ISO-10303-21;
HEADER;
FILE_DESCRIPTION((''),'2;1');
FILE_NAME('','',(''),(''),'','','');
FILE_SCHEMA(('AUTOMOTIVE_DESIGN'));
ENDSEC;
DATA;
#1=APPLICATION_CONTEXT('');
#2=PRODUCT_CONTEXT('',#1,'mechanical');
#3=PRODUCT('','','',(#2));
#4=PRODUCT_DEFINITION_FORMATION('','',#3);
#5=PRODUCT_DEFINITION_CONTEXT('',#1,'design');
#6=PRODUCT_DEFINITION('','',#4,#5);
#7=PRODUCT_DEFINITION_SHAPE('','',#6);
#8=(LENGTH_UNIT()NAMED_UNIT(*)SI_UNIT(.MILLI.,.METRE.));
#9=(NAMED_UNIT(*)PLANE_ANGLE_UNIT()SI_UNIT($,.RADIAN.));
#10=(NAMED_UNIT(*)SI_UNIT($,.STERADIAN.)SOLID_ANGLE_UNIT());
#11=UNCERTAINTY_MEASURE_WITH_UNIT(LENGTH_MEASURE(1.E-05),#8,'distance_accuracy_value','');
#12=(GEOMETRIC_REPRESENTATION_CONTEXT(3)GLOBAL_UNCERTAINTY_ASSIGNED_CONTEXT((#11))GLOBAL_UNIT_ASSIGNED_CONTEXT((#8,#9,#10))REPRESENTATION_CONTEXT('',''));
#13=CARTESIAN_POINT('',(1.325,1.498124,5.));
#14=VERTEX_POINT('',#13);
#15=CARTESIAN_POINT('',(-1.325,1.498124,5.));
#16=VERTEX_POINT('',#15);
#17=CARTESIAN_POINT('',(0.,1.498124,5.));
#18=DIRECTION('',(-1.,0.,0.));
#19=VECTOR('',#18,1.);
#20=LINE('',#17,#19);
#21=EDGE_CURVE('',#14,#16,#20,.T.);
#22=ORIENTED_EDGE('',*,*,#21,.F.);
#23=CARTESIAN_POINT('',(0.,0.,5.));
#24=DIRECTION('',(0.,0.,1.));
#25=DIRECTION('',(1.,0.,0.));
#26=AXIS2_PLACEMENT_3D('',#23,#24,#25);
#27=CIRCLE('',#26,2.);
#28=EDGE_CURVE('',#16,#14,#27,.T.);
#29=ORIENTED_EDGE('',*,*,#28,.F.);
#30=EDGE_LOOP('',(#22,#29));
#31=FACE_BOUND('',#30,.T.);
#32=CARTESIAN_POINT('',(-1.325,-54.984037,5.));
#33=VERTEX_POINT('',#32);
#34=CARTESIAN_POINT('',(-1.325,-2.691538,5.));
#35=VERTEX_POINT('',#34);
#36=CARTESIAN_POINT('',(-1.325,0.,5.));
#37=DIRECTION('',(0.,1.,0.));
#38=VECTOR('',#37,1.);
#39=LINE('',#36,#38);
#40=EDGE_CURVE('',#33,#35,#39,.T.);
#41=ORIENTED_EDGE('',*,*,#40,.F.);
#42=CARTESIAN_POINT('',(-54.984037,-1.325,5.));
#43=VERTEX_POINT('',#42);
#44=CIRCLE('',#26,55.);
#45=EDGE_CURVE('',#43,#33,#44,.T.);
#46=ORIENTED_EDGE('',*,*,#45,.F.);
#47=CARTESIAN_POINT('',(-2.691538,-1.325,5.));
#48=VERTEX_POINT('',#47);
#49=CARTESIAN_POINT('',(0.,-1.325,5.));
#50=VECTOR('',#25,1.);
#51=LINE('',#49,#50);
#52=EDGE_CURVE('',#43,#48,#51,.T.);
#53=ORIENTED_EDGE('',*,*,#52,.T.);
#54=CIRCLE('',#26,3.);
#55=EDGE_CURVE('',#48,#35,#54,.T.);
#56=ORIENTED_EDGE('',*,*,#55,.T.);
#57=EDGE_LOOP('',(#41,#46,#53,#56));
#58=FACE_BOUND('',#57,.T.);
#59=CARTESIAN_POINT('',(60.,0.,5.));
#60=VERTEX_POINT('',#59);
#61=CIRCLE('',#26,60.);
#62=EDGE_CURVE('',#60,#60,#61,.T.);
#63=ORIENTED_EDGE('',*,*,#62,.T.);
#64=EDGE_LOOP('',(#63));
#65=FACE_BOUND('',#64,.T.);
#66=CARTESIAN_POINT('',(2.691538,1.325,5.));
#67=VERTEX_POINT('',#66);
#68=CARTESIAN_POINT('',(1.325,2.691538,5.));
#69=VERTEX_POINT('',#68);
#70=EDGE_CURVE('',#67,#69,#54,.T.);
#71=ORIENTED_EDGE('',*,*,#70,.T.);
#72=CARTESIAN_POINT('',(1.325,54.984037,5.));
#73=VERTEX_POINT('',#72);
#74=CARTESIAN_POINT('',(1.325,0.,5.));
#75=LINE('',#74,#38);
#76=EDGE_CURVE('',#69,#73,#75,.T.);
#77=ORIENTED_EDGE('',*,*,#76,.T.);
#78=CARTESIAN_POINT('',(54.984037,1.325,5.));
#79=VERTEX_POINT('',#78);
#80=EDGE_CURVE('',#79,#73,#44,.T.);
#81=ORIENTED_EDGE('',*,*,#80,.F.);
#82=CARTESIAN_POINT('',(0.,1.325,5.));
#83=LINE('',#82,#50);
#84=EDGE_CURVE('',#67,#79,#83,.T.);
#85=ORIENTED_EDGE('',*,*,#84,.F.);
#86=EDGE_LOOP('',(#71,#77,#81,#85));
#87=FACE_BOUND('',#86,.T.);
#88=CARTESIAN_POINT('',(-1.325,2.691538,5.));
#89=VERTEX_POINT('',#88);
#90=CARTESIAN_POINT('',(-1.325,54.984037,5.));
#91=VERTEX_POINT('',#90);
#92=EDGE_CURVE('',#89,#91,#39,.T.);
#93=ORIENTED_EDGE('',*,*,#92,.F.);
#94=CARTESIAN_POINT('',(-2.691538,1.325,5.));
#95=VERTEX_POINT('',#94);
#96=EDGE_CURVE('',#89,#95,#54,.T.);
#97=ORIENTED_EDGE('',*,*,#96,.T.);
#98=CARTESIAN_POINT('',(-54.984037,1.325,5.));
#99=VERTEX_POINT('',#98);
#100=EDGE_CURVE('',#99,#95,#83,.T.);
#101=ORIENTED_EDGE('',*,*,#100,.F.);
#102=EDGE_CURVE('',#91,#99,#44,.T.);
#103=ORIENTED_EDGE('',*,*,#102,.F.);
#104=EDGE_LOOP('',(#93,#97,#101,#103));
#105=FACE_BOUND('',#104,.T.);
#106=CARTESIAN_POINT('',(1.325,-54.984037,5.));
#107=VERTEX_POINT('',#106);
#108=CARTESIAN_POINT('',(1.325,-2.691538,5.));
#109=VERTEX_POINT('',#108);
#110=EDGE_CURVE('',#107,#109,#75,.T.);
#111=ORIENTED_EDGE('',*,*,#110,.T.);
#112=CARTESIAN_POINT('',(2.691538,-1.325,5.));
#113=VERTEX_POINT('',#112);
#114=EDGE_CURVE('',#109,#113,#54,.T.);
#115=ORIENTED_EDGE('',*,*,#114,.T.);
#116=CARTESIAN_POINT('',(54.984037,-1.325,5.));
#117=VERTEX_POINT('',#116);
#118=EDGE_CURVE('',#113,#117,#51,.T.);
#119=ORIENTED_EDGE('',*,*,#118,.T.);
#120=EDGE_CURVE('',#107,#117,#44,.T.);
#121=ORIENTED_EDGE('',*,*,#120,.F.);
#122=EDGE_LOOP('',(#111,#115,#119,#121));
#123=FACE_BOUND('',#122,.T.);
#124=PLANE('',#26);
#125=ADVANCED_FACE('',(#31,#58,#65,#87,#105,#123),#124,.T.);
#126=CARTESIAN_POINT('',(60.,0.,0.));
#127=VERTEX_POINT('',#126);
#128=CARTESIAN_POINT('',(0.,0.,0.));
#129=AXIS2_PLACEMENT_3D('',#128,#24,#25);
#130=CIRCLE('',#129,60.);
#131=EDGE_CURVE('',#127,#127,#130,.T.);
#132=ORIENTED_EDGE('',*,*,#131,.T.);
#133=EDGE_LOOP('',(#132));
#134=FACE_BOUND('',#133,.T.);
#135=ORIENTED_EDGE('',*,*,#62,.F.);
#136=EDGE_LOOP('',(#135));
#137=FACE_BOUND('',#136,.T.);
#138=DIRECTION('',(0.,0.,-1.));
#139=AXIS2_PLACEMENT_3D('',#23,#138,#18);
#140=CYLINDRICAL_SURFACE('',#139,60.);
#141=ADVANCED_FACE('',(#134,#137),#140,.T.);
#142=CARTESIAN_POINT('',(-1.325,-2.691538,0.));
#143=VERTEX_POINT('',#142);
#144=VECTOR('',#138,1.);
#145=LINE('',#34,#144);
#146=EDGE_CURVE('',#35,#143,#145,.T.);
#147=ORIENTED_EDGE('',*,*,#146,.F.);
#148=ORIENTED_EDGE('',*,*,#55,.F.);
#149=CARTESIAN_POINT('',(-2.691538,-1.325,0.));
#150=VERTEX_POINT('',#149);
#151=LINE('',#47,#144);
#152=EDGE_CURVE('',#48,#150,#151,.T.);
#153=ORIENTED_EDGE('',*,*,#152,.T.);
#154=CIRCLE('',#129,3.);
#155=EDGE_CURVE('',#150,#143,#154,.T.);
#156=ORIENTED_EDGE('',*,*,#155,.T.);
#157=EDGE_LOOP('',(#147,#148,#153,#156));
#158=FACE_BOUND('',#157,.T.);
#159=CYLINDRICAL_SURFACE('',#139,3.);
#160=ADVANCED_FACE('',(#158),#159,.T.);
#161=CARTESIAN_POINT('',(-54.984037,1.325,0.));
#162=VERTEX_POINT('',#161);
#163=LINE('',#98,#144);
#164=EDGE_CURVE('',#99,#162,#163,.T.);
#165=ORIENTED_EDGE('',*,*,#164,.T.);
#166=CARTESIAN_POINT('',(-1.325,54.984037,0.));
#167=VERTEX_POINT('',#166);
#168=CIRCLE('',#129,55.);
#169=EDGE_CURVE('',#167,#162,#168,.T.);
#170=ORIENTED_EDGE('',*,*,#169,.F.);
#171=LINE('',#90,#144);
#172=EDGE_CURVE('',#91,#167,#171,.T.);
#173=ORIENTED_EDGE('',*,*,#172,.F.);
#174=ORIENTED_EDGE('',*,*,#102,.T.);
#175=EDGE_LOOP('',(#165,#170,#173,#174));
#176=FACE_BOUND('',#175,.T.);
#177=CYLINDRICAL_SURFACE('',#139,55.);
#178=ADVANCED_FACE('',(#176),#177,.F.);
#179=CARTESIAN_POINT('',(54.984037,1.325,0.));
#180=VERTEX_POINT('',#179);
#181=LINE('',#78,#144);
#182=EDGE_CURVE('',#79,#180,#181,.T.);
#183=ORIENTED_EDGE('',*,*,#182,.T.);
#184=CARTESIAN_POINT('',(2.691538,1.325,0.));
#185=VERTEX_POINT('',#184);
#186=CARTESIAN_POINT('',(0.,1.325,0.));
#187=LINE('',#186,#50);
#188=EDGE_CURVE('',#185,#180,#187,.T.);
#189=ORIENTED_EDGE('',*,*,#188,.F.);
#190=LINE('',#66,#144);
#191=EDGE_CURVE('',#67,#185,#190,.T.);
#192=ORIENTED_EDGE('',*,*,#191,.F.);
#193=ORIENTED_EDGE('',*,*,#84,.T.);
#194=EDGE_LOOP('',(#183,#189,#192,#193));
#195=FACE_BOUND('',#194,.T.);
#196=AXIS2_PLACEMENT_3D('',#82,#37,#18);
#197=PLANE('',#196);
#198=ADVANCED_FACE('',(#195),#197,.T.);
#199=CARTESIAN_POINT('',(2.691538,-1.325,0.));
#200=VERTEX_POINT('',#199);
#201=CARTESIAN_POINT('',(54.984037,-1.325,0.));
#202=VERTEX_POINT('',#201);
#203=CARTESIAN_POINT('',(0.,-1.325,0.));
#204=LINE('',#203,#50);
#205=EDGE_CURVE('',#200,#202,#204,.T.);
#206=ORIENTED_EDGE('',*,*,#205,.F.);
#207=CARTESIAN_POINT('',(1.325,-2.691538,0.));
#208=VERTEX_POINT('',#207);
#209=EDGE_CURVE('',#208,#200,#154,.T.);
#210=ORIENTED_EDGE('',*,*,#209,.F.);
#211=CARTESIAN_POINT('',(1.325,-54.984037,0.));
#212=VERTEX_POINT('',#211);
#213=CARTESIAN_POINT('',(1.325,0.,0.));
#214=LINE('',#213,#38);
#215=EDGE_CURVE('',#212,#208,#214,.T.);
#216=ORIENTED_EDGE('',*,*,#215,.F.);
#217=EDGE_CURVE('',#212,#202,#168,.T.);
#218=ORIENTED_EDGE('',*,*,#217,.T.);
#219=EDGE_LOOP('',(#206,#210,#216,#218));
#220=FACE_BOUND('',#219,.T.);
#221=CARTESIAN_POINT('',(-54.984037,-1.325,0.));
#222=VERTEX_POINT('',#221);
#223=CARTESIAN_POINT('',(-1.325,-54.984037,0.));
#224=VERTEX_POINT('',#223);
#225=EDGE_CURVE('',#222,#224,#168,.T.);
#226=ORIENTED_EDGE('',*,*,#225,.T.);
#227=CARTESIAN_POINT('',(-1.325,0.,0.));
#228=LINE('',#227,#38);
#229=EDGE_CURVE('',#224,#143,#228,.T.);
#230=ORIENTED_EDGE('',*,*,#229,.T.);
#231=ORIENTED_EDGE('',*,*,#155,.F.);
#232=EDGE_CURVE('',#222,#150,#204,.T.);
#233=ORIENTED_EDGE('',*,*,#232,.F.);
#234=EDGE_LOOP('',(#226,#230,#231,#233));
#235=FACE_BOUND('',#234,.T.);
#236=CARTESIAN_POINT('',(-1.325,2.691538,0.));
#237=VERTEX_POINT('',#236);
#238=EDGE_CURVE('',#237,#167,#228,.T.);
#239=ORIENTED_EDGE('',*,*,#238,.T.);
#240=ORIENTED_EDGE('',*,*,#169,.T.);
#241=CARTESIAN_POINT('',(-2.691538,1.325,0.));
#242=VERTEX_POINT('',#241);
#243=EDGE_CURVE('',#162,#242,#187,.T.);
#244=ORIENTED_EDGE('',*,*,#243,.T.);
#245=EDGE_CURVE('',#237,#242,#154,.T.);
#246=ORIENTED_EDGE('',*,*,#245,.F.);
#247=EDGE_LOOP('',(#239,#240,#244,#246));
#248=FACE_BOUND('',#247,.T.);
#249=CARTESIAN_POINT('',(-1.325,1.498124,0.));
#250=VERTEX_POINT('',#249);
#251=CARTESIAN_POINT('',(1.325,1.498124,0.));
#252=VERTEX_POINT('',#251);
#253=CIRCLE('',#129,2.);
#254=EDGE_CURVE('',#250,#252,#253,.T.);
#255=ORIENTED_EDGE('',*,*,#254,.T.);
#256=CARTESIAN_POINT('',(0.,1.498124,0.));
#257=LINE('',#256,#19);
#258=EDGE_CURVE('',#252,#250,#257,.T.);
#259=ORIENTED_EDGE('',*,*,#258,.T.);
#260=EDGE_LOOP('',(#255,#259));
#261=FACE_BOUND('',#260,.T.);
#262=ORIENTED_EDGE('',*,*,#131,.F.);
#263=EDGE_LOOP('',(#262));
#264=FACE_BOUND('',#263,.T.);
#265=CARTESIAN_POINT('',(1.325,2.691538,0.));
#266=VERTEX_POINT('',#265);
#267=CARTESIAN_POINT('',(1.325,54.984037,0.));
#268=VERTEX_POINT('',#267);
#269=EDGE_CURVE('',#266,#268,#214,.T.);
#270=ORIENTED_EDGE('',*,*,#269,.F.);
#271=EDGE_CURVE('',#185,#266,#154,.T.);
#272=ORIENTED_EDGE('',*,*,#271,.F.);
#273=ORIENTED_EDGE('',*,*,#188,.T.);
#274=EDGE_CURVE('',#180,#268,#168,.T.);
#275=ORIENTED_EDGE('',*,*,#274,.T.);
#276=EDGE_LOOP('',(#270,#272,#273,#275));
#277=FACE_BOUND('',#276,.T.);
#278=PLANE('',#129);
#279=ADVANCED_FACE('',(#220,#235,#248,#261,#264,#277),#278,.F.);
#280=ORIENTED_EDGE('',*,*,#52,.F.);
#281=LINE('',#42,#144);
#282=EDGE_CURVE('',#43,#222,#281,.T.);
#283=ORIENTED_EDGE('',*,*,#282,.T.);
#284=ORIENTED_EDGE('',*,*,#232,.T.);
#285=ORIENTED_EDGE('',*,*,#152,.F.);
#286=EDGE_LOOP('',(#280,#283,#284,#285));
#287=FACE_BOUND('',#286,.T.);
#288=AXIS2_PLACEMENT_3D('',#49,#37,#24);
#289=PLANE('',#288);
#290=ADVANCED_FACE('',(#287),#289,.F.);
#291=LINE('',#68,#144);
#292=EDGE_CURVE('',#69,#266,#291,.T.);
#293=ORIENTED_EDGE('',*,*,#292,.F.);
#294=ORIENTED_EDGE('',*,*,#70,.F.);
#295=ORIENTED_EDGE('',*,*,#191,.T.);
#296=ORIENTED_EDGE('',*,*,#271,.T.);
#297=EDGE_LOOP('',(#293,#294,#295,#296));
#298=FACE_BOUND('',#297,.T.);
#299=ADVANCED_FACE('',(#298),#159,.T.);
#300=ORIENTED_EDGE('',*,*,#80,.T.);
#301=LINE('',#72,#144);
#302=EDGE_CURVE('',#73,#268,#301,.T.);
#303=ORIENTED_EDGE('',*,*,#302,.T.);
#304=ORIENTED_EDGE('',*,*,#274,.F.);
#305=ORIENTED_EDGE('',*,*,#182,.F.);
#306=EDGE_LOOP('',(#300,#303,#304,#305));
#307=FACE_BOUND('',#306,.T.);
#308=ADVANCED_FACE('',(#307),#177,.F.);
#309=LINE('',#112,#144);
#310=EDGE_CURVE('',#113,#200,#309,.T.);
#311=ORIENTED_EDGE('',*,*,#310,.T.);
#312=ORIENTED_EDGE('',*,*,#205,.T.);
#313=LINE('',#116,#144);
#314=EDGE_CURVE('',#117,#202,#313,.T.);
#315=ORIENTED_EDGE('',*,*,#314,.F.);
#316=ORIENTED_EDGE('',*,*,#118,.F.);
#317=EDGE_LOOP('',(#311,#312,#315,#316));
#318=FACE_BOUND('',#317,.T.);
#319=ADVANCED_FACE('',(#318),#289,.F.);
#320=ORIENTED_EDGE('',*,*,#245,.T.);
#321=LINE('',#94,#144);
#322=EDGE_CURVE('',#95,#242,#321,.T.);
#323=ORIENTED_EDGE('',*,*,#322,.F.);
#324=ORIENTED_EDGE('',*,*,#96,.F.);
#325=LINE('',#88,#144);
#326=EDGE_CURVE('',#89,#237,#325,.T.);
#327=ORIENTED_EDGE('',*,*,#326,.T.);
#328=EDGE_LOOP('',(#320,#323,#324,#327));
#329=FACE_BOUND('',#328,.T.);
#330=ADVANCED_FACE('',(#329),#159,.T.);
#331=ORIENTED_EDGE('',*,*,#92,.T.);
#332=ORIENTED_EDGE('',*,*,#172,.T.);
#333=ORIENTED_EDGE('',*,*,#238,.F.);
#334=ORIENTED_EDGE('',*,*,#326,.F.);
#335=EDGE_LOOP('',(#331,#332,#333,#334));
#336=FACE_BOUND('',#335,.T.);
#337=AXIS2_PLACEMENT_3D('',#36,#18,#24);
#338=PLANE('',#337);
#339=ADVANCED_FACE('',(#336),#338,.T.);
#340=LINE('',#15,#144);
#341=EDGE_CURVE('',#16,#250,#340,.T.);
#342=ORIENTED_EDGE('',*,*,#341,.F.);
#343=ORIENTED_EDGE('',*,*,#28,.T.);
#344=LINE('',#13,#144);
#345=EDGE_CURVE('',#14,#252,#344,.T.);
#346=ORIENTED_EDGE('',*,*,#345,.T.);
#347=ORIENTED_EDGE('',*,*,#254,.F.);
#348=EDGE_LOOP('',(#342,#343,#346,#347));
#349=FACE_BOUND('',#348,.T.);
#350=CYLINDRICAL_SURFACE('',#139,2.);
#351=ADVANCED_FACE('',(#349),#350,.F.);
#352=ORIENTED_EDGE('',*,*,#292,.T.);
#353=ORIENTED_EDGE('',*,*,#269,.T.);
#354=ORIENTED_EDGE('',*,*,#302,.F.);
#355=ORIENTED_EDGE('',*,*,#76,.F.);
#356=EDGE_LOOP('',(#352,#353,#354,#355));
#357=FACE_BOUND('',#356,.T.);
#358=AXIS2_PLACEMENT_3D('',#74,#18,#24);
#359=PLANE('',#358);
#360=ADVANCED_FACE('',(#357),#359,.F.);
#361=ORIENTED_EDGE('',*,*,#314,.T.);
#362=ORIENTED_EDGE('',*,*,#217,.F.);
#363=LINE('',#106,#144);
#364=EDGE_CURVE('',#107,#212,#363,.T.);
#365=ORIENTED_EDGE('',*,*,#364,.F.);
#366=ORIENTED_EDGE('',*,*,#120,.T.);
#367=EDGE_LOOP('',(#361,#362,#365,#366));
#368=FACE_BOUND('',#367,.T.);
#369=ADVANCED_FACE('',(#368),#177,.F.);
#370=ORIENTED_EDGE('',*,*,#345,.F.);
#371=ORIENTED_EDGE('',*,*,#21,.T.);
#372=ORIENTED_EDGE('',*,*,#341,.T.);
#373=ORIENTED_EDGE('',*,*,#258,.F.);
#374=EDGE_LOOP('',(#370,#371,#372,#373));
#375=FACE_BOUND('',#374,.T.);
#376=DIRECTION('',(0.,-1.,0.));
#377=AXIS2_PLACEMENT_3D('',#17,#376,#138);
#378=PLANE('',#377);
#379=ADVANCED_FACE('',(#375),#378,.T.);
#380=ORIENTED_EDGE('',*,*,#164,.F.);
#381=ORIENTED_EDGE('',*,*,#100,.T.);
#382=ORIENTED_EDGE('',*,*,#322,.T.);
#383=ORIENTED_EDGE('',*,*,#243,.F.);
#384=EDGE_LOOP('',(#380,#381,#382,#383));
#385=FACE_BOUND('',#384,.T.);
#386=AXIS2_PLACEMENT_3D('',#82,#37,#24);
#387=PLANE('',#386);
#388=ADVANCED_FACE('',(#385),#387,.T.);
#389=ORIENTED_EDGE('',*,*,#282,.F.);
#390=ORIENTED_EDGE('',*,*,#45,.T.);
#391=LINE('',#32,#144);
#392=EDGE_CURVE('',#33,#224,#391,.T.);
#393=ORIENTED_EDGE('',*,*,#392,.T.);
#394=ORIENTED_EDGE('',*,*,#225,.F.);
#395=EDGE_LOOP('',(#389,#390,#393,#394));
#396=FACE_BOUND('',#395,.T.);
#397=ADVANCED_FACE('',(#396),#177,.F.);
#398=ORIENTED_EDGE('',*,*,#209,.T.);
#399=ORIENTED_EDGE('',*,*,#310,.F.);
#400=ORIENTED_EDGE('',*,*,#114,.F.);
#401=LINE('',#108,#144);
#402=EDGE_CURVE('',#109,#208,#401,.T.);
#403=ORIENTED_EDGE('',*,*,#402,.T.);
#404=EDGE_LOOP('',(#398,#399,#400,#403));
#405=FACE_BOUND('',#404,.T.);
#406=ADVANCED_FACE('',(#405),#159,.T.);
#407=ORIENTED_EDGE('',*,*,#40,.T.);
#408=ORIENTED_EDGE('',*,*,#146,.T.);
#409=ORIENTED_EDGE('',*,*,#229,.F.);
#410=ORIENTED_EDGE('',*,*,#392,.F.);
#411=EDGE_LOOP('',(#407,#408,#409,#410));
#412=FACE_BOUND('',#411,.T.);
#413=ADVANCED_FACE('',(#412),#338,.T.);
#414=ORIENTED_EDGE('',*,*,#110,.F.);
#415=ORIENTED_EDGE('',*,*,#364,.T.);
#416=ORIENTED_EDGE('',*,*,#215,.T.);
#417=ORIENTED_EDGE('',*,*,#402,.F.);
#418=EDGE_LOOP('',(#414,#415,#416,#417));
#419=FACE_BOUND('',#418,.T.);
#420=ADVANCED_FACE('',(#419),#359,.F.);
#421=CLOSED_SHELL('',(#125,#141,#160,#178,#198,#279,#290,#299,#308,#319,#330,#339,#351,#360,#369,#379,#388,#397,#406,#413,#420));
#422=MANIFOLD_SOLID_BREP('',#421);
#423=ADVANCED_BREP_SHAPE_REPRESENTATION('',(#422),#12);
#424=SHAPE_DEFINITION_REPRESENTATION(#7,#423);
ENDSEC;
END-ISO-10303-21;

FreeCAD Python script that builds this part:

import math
import FreeCAD as App
import Part
import Sketcher

doc = App.newDocument("Part")
params = doc.addObject("Spreadsheet::Sheet", "Params")
for row, (alias, value) in enumerate([
    ("sketch1_diameter", "120 mm"),
    ("sketch1_radius", "55 mm"),
    ("sketch1_radius2", "3 mm"),
    ("sketch1_radius3", "2 mm"),
    ("sketch1_width", "2.65 mm"),
    ("pad1_length", "5 mm"),
], start=1):
    params.set(f"A{row}", alias)
    params.set(f"B{row}", "=" + value)
    params.setAlias(f"B{row}", alias)

body = doc.addObject("PartDesign::Body", "Body")

sketch1 = body.newObject("Sketcher::SketchObject", "Sketch")
sketch1.AttachmentSupport = (doc.getObject("XY_Plane"), [""])
sketch1.MapMode = "FlatFace"
sketch1.addGeometry([
    Part.Circle(App.Vector(0, 0, 0), App.Vector(0, 0, 1), 60),
    Part.ArcOfCircle(Part.Circle(App.Vector(0, 0, 0), App.Vector(0, 0, 1), 55), math.radians(91.380441), math.radians(178.619559)),
    Part.LineSegment(App.Vector(-1.325, 54.984037, 0), App.Vector(-1.325, 2.691538, 0)),
    Part.ArcOfCircle(Part.Circle(App.Vector(0, 0, 0), App.Vector(0, 0, 1), 3), math.radians(116.210269), math.radians(153.789731)),
    Part.LineSegment(App.Vector(-2.691538, 1.325, 0), App.Vector(-54.984037, 1.325, 0)),
    Part.LineSegment(App.Vector(-54.984037, -1.325, 0), App.Vector(-2.691538, -1.325, 0)),
    Part.ArcOfCircle(Part.Circle(App.Vector(0, 0, 0), App.Vector(0, 0, 1), 3), math.radians(-153.789731), math.radians(-116.210269)),
    Part.LineSegment(App.Vector(-1.325, -2.691538, 0), App.Vector(-1.325, -54.984037, 0)),
    Part.ArcOfCircle(Part.Circle(App.Vector(0, 0, 0), App.Vector(0, 0, 1), 55), math.radians(-178.619559), math.radians(-91.380441)),
    Part.LineSegment(App.Vector(1.325, -54.984037, 0), App.Vector(1.325, -2.691538, 0)),
    Part.ArcOfCircle(Part.Circle(App.Vector(0, 0, 0), App.Vector(0, 0, 1), 3), math.radians(-63.789731), math.radians(-26.210269)),
    Part.LineSegment(App.Vector(2.691538, -1.325, 0), App.Vector(54.984037, -1.325, 0)),
    Part.ArcOfCircle(Part.Circle(App.Vector(0, 0, 0), App.Vector(0, 0, 1), 55), math.radians(-88.619559), math.radians(-1.380441)),
    Part.LineSegment(App.Vector(54.984037, 1.325, 0), App.Vector(2.691538, 1.325, 0)),
    Part.ArcOfCircle(Part.Circle(App.Vector(0, 0, 0), App.Vector(0, 0, 1), 3), math.radians(26.210269), math.radians(63.789731)),
    Part.LineSegment(App.Vector(1.325, 2.691538, 0), App.Vector(1.325, 54.984037, 0)),
    Part.ArcOfCircle(Part.Circle(App.Vector(0, 0, 0), App.Vector(0, 0, 1), 55), math.radians(1.380441), math.radians(88.619559)),
    Part.ArcOfCircle(Part.Circle(App.Vector(0, 0, 0), App.Vector(0, 0, 1), 2), math.radians(131.490817), math.radians(408.509183)),
    Part.LineSegment(App.Vector(-1.325, 1.498124, 0), App.Vector(1.325, 1.498124, 0)),
], False)
sketch1.addConstraint([
    Sketcher.Constraint("Coincident", 1, 1, 2, 1),
    Sketcher.Constraint("Coincident", 2, 2, 3, 1),
    Sketcher.Constraint("Coincident", 3, 2, 4, 1),
    Sketcher.Constraint("Coincident", 4, 2, 1, 2),
    Sketcher.Constraint("Coincident", 5, 2, 6, 1),
    Sketcher.Constraint("Coincident", 6, 2, 7, 1),
    Sketcher.Constraint("Coincident", 7, 2, 8, 2),
    Sketcher.Constraint("Coincident", 8, 1, 5, 1),
    Sketcher.Constraint("Coincident", 9, 2, 10, 1),
    Sketcher.Constraint("Coincident", 10, 2, 11, 1),
    Sketcher.Constraint("Coincident", 11, 2, 12, 2),
    Sketcher.Constraint("Coincident", 12, 1, 9, 1),
    Sketcher.Constraint("Coincident", 13, 2, 14, 1),
    Sketcher.Constraint("Coincident", 14, 2, 15, 1),
    Sketcher.Constraint("Coincident", 15, 2, 16, 2),
    Sketcher.Constraint("Coincident", 16, 1, 13, 1),
    Sketcher.Constraint("Coincident", 17, 1, 18, 1),
    Sketcher.Constraint("Coincident", 18, 2, 17, 2),
    Sketcher.Constraint("Vertical", 2),
    Sketcher.Constraint("Horizontal", 4),
    Sketcher.Constraint("Horizontal", 5),
    Sketcher.Constraint("Vertical", 7),
    Sketcher.Constraint("Vertical", 9),
    Sketcher.Constraint("Horizontal", 11),
    Sketcher.Constraint("Horizontal", 13),
    Sketcher.Constraint("Vertical", 15),
    Sketcher.Constraint("Horizontal", 18),
    Sketcher.Constraint("Coincident", 0, 3, -1, 1),
    Sketcher.Constraint("Coincident", 1, 3, -1, 1),
    Sketcher.Constraint("Coincident", 3, 3, -1, 1),
    Sketcher.Constraint("Coincident", 6, 3, -1, 1),
    Sketcher.Constraint("Coincident", 8, 3, -1, 1),
    Sketcher.Constraint("Coincident", 10, 3, -1, 1),
    Sketcher.Constraint("Coincident", 12, 3, -1, 1),
    Sketcher.Constraint("Coincident", 14, 3, -1, 1),
    Sketcher.Constraint("Coincident", 16, 3, -1, 1),
    Sketcher.Constraint("Coincident", 17, 3, -1, 1),
    Sketcher.Constraint("Equal", 3, 6),
    Sketcher.Constraint("Equal", 1, 8),
    Sketcher.Constraint("Equal", 6, 10),
    Sketcher.Constraint("Equal", 8, 12),
    Sketcher.Constraint("Equal", 10, 14),
    Sketcher.Constraint("Equal", 12, 16),
    Sketcher.Constraint("Horizontal", 6, 2, 9, 2),
    Sketcher.Constraint("Horizontal", 8, 1, 10, 2),
    Sketcher.Constraint("Horizontal", 4, 2, 13, 2),
    Sketcher.Constraint("Horizontal", 2, 2, 14, 2),
    Sketcher.Constraint("Vertical", 3, 2, 5, 2),
    Sketcher.Constraint("Vertical", 2, 2, 6, 2),
    Sketcher.Constraint("Vertical", 7, 2, 17, 1),
    Sketcher.Constraint("Equal", 13, 2),
    Sketcher.Constraint("Diameter", 0, 120.0),
    Sketcher.Constraint("Radius", 1, 55.0),
    Sketcher.Constraint("Radius", 3, 3.0),
    Sketcher.Constraint("Radius", 17, 2.0),
    Sketcher.Constraint("DistanceX", 18, 1, 18, 2, 2.65),
])
sketch1.setExpression("Constraints[51]", "Params.sketch1_diameter")
sketch1.setExpression("Constraints[52]", "Params.sketch1_radius")
sketch1.setExpression("Constraints[53]", "Params.sketch1_radius2")
sketch1.setExpression("Constraints[54]", "Params.sketch1_radius3")
sketch1.setExpression("Constraints[55]", "Params.sketch1_width")
pad1 = body.newObject("PartDesign::Pad", "Pad")
pad1.Profile = sketch1
pad1.setExpression("Length", "Params.pad1_length")

doc.recompute()
